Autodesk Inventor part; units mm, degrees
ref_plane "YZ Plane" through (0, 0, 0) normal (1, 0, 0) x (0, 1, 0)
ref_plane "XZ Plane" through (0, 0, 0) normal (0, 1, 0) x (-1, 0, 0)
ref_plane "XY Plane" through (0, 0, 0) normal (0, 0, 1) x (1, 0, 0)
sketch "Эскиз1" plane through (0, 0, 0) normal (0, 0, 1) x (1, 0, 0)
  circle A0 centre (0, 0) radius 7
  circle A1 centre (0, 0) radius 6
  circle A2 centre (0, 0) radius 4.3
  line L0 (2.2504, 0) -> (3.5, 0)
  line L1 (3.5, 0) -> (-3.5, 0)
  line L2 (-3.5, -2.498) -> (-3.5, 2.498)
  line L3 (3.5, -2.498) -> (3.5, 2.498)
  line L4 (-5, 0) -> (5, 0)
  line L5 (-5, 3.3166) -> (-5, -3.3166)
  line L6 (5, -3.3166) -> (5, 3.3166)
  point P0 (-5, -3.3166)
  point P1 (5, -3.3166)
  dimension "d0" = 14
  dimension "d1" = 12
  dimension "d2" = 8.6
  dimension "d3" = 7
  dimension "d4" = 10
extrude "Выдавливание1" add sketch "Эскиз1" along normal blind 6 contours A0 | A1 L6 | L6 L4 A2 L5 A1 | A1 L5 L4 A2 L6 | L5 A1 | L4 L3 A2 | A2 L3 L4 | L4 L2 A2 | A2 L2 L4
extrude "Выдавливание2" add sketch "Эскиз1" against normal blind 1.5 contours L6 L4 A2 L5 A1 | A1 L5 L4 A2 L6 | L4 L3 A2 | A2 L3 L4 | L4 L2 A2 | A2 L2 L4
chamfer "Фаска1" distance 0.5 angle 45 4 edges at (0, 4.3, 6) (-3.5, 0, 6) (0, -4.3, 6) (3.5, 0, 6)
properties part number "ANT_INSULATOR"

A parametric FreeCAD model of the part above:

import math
import FreeCAD as App
import Part
import Sketcher


def edges_at(feature, points):
    """Names of the edges that pass closest to the given points."""
    edges = feature.Shape.Edges
    near = lambda p: min(range(len(edges)), key=lambda i: edges[i].distToShape(Part.Vertex(*p))[0])
    return sorted({f"Edge{near(p) + 1}" for p in points})

doc = App.newDocument("Part")
body = doc.addObject("PartDesign::Body", "Body")

sketch1 = doc.addObject("Sketcher::SketchObject", "Sketch")
body.addObject(sketch1)
sketch1.AttachmentSupport = (doc.XY_Plane, [""])
sketch1.MapMode = "FlatFace"
sketch1.addGeometry(Part.Circle(App.Vector(0, 0, 0), App.Vector(0, 0, 1), 7), False)
sketch1.addGeometry(Part.ArcOfCircle(Part.Circle(App.Vector(0, 0, 0), App.Vector(0, 0, 1), 4.3), math.radians(36), math.radians(144)), False)
sketch1.addGeometry(Part.LineSegment(App.Vector(3.5, 2.5, 0), App.Vector(3.5, -2.5, 0)), False)
sketch1.addGeometry(Part.ArcOfCircle(Part.Circle(App.Vector(0, 0, 0), App.Vector(0, 0, 1), 4.3), math.radians(-144), math.radians(-36)), False)
sketch1.addGeometry(Part.LineSegment(App.Vector(-3.5, -2.5, 0), App.Vector(-3.5, 2.5, 0)), False)
sketch1.addConstraint(Sketcher.Constraint("Coincident", 1, 1, 2, 1))
sketch1.addConstraint(Sketcher.Constraint("Coincident", 2, 2, 3, 2))
sketch1.addConstraint(Sketcher.Constraint("Coincident", 3, 1, 4, 1))
sketch1.addConstraint(Sketcher.Constraint("Coincident", 4, 2, 1, 2))
sketch1.addConstraint(Sketcher.Constraint("Vertical", 2))
sketch1.addConstraint(Sketcher.Constraint("Vertical", 4))
sketch1.addConstraint(Sketcher.Constraint("Coincident", 0, 3, -1, 1))
sketch1.addConstraint(Sketcher.Constraint("Coincident", 1, 3, -1, 1))
sketch1.addConstraint(Sketcher.Constraint("Coincident", 3, 3, -1, 1))
sketch1.addConstraint(Sketcher.Constraint("Equal", 1, 3))
sketch1.addConstraint(Sketcher.Constraint("Horizontal", 2, 2, 3, 1))
sketch1.addConstraint(Sketcher.Constraint("Diameter", 0, 14.0))
sketch1.addConstraint(Sketcher.Constraint("Radius", 1, 4.3))
sketch1.addConstraint(Sketcher.Constraint("DistanceX", 3, 1, 2, 2, 7.0))
pad1 = doc.addObject("PartDesign::Pad", "Pad")
body.addObject(pad1)
pad1.Profile = sketch1
pad1.Length = 6

sketch2 = doc.addObject("Sketcher::SketchObject", "Sketch001")
body.addObject(sketch2)
sketch2.AttachmentSupport = (doc.XY_Plane, [""])
sketch2.MapMode = "FlatFace"
sketch2.addGeometry(Part.ArcOfCircle(Part.Circle(App.Vector(0, 0, 0), App.Vector(0, 0, 1), 6), math.radians(34), math.radians(146)), False)
sketch2.addGeometry(Part.LineSegment(App.Vector(-5, 3.3, 0), App.Vector(-5, -3.3, 0)), False)
sketch2.addGeometry(Part.ArcOfCircle(Part.Circle(App.Vector(0, 0, 0), App.Vector(0, 0, 1), 6), math.radians(-146), math.radians(-34)), False)
sketch2.addGeometry(Part.LineSegment(App.Vector(5, -3.3, 0), App.Vector(5, 3.3, 0)), False)
sketch2.addGeometry(Part.ArcOfCircle(Part.Circle(App.Vector(0, 0, 0), App.Vector(0, 0, 1), 4.3), math.radians(36), math.radians(144)), False)
sketch2.addGeometry(Part.LineSegment(App.Vector(3.5, 2.5, 0), App.Vector(3.5, -2.5, 0)), False)
sketch2.addGeometry(Part.ArcOfCircle(Part.Circle(App.Vector(0, 0, 0), App.Vector(0, 0, 1), 4.3), math.radians(-144), math.radians(-36)), False)
sketch2.addGeometry(Part.LineSegment(App.Vector(-3.5, -2.5, 0), App.Vector(-3.5, 2.5, 0)), False)
sketch2.addConstraint(Sketcher.Constraint("Coincident", 0, 2, 1, 1))
sketch2.addConstraint(Sketcher.Constraint("Coincident", 1, 2, 2, 1))
sketch2.addConstraint(Sketcher.Constraint("Coincident", 2, 2, 3, 1))
sketch2.addConstraint(Sketcher.Constraint("Coincident", 3, 2, 0, 1))
sketch2.addConstraint(Sketcher.Constraint("Coincident", 4, 1, 5, 1))
sketch2.addConstraint(Sketcher.Constraint("Coincident", 5, 2, 6, 2))
sketch2.addConstraint(Sketcher.Constraint("Coincident", 6, 1, 7, 1))
sketch2.addConstraint(Sketcher.Constraint("Coincident", 7, 2, 4, 2))
sketch2.addConstraint(Sketcher.Constraint("Vertical", 1))
sketch2.addConstraint(Sketcher.Constraint("Vertical", 3))
sketch2.addConstraint(Sketcher.Constraint("Vertical", 5))
sketch2.addConstraint(Sketcher.Constraint("Vertical", 7))
sketch2.addConstraint(Sketcher.Constraint("Coincident", 0, 3, -1, 1))
sketch2.addConstraint(Sketcher.Constraint("Coincident", 2, 3, -1, 1))
sketch2.addConstraint(Sketcher.Constraint("Coincident", 4, 3, -1, 1))
sketch2.addConstraint(Sketcher.Constraint("Coincident", 6, 3, -1, 1))
sketch2.addConstraint(Sketcher.Constraint("Equal", 0, 2))
sketch2.addConstraint(Sketcher.Constraint("Equal", 4, 6))
sketch2.addConstraint(Sketcher.Constraint("Horizontal", 1, 2, 2, 2))
sketch2.addConstraint(Sketcher.Constraint("Horizontal", 5, 2, 6, 1))
sketch2.addConstraint(Sketcher.Constraint("Radius", 0, 6.0))
sketch2.addConstraint(Sketcher.Constraint("Radius", 4, 4.3))
sketch2.addConstraint(Sketcher.Constraint("DistanceX", 1, 2, 2, 2, 10.0))
sketch2.addConstraint(Sketcher.Constraint("DistanceX", -1, 1, 4, 1, 3.5))
pad2 = doc.addObject("PartDesign::Pad", "Pad001")
body.addObject(pad2)
pad2.Profile = sketch2
pad2.Length = 1.5
pad2.Reversed = True
doc.recompute()

chamfer = doc.addObject("PartDesign::Chamfer", "Chamfer")
body.addObject(chamfer)
chamfer.Base = (pad2, edges_at(pad2, [
    (0, 4.3, 6),
    (-3.5, 0, 6),
    (0, -4.3, 6),
    (3.5, 0, 6),
]))
chamfer.Size = 0.5

doc.recompute()
